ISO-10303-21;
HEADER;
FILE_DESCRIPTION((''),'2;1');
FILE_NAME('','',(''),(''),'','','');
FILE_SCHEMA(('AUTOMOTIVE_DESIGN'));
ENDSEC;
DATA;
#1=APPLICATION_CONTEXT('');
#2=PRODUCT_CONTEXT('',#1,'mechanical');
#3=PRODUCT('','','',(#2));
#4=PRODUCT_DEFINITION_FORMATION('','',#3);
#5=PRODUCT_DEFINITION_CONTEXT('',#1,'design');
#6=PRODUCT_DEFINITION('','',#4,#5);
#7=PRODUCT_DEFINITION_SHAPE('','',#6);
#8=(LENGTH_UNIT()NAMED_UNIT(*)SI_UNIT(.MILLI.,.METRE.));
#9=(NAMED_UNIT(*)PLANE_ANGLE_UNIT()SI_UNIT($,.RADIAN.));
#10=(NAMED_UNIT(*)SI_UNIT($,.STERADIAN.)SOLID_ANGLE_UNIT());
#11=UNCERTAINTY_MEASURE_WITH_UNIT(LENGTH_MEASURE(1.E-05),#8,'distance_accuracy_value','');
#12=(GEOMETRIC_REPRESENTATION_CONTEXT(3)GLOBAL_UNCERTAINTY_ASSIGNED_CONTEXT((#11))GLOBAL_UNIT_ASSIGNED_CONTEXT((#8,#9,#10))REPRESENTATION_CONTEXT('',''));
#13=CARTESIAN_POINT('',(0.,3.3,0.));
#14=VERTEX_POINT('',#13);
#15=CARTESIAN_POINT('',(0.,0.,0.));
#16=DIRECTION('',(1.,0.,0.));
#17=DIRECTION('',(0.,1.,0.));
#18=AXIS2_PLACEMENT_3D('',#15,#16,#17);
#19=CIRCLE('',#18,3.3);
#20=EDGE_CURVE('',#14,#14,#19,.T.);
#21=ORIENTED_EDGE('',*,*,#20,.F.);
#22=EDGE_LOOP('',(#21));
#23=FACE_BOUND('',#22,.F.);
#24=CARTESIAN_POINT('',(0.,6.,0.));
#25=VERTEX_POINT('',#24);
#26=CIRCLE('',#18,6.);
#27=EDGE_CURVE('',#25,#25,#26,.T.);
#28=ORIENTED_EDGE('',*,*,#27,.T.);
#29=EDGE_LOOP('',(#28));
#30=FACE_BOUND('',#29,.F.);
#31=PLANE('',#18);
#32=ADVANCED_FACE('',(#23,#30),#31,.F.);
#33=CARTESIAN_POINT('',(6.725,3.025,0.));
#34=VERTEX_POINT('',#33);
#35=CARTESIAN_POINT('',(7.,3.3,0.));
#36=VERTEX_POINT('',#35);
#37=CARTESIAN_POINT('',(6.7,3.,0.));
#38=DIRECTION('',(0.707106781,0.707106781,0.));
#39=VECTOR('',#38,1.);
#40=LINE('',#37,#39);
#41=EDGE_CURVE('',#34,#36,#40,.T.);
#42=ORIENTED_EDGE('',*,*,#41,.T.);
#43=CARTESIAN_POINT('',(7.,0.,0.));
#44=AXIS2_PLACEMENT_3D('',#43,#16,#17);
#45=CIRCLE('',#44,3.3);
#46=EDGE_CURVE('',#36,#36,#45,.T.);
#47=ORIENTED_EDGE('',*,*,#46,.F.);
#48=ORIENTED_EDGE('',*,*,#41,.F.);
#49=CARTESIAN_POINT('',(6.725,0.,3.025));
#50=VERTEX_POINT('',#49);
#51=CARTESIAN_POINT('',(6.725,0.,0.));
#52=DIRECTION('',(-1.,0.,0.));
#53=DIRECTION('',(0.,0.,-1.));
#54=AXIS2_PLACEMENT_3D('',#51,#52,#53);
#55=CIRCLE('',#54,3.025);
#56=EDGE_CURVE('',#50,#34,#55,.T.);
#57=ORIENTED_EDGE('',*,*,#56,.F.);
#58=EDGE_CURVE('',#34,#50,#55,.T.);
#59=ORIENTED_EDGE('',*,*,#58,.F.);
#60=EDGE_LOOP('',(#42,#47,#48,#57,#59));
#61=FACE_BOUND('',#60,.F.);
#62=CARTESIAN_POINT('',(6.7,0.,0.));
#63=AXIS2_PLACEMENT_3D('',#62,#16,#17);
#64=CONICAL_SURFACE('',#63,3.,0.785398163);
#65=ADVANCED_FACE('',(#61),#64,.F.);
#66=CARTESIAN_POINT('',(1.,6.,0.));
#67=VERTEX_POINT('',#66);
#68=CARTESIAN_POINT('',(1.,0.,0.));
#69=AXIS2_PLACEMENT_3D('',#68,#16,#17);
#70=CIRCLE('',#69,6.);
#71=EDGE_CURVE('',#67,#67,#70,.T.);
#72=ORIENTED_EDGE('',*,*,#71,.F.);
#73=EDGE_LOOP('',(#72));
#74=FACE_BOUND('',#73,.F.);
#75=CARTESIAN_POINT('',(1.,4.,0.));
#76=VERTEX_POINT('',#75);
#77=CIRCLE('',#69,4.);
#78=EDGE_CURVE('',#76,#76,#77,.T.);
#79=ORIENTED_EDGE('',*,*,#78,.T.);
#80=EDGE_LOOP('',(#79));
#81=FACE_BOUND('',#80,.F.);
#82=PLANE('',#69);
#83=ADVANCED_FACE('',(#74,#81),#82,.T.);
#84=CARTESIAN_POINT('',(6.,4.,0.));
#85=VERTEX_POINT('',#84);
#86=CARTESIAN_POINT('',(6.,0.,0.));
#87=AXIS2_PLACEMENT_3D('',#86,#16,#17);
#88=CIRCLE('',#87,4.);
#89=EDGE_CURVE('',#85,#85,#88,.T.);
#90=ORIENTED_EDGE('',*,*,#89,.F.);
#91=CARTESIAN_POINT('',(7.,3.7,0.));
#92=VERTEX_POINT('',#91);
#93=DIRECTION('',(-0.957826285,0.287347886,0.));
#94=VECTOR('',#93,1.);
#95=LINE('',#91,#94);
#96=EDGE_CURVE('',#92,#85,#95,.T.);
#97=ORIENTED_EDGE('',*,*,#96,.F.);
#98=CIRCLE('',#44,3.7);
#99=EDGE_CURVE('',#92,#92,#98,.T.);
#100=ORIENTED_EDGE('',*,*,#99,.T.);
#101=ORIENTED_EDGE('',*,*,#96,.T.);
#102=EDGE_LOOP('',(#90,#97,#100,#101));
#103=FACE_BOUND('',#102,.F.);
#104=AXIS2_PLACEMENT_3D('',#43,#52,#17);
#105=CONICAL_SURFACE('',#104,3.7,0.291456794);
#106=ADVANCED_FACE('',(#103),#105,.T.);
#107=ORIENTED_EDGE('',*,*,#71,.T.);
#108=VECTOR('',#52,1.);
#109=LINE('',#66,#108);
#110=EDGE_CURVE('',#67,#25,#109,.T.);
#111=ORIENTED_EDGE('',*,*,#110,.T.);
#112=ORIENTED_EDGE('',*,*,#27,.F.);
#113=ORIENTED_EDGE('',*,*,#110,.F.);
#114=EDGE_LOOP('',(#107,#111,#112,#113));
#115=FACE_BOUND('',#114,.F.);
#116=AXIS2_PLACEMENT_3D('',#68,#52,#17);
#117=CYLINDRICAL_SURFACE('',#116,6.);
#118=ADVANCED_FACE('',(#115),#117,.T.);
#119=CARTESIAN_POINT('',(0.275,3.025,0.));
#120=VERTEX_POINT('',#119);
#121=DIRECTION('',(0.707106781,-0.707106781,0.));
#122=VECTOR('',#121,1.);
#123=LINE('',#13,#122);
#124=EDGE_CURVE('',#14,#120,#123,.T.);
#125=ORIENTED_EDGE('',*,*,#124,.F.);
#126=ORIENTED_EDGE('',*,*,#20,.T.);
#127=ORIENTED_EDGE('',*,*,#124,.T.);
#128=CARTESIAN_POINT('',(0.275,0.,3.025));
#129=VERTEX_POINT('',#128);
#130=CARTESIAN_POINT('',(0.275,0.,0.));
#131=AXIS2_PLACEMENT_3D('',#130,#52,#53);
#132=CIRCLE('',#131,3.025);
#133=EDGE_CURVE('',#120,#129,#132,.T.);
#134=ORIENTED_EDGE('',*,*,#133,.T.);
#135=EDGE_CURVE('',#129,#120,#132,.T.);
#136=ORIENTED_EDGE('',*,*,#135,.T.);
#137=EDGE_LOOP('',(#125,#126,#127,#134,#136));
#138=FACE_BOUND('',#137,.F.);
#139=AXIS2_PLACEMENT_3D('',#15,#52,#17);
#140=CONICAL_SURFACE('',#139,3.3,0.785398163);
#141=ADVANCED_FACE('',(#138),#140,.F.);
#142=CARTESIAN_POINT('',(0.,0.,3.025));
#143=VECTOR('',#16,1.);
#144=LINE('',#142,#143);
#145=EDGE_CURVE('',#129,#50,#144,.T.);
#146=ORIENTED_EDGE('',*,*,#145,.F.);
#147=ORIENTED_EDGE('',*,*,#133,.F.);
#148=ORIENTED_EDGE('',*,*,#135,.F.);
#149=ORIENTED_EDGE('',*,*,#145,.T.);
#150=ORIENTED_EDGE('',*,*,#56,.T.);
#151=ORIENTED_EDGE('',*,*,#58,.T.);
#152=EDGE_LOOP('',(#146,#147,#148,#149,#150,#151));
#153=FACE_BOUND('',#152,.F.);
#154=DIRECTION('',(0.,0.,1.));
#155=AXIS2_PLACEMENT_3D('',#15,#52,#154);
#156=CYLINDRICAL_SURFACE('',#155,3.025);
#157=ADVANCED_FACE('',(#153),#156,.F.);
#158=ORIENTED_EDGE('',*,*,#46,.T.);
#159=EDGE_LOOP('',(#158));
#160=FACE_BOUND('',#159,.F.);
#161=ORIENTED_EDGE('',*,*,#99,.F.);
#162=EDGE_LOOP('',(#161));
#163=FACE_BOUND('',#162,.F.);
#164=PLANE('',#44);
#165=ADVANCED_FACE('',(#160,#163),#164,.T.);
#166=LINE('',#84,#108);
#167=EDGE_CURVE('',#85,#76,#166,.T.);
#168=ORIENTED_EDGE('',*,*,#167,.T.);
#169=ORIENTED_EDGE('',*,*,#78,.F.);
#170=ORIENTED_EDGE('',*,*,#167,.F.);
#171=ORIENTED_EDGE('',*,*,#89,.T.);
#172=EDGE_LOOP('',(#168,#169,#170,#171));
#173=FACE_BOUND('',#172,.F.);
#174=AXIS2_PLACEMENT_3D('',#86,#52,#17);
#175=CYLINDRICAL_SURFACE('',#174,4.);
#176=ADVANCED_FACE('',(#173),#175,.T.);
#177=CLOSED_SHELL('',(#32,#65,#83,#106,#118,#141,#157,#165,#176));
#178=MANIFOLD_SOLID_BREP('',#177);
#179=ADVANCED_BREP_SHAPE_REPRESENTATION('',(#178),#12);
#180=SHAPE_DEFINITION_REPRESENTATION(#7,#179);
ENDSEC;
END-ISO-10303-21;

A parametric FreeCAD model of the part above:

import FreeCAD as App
import Part
import Sketcher

V = App.Vector


def add_polygon(sketch, points):
    """Adds a closed chain of lines whose ends are joined by coincident constraints."""
    first, n = sketch.GeometryCount, len(points)
    for a, b in zip(points, points[1:] + points[:1]):
        sketch.addGeometry(Part.LineSegment(App.Vector(*a, 0), App.Vector(*b, 0)), False)
    for i in range(n):
        sketch.addConstraint(Sketcher.Constraint("Coincident", first + i, 2, first + (i + 1) % n, 1))

doc = App.newDocument("Part")
params = doc.addObject("Spreadsheet::Sheet", "Params")
for row, (alias, value) in enumerate([
    ("sketch1_width", "5 mm"),
    ("sketch1_width2", "1 mm"),
    ("sketch1_height", "2 mm"),
    ("sketch1_width3", "6.4 mm"),
    ("sketch1_height2", "2.7 mm"),
    ("revolution_angle", "360 deg"),
    ("sketch2_diameter", "6.05 mm"),
    ("pocket1_length", "7 mm"),
], start=1):
    params.set(f"A{row}", alias)
    params.set(f"B{row}", "=" + value)
    params.setAlias(f"B{row}", alias)

body = doc.addObject("PartDesign::Body", "Body")

# Sketch on XY plane
sketch1 = body.newObject("Sketcher::SketchObject", "Sketch")
sketch1.AttachmentSupport = (doc.getObject("XY_Plane"), [""])
sketch1.MapMode = "FlatFace"
add_polygon(sketch1, [(0, 6), (0, 3.3), (0.3, 3), (6.7, 3), (7, 3.3), (7, 3.7), (6, 4), (1, 4), (1, 6)])  # lines 0-8
sketch1.addConstraint(Sketcher.Constraint("Vertical", 0))
sketch1.addConstraint(Sketcher.Constraint("Horizontal", 2))
sketch1.addConstraint(Sketcher.Constraint("Vertical", 4))
sketch1.addConstraint(Sketcher.Constraint("Horizontal", 6))
sketch1.addConstraint(Sketcher.Constraint("Vertical", 7))
sketch1.addConstraint(Sketcher.Constraint("Horizontal", 8))
sketch1.addConstraint(Sketcher.Constraint("PointOnObject", 0, 2, -2))
sketch1.addConstraint(Sketcher.Constraint("Perpendicular", 1, 3))
sketch1.addConstraint(Sketcher.Constraint("Horizontal", 0, 2, 3, 2))
sketch1.addConstraint(Sketcher.Constraint("Equal", 1, 3))
sketch1.addConstraint(Sketcher.Constraint("DistanceX", 6, 2, 6, 1, 5.0))
sketch1.addConstraint(Sketcher.Constraint("DistanceX", 8, 2, 8, 1, 1.0))
sketch1.addConstraint(Sketcher.Constraint("DistanceY", 7, 1, 7, 2, 2.0))
sketch1.addConstraint(Sketcher.Constraint("DistanceX", 2, 1, 2, 2, 6.4))
sketch1.addConstraint(Sketcher.Constraint("DistanceY", 0, 2, 0, 1, 2.7))
sketch1.addConstraint(Sketcher.Constraint("DistanceY", 4, 1, 4, 2, 0.4))
sketch1.addConstraint(Sketcher.Constraint("DistanceY", -1, 1, 1, 2, 3.0))
sketch1.addConstraint(Sketcher.Constraint("DistanceX", -1, 1, 3, 2, 7.0))
sketch1.setExpression("Constraints[19]", "Params.sketch1_width")
sketch1.setExpression("Constraints[20]", "Params.sketch1_width2")
sketch1.setExpression("Constraints[21]", "Params.sketch1_height")
sketch1.setExpression("Constraints[22]", "Params.sketch1_width3")
sketch1.setExpression("Constraints[23]", "Params.sketch1_height2")
revolution = body.newObject("PartDesign::Revolution", "Revolution")
revolution.Profile = sketch1
revolution.ReferenceAxis = (sketch1, ["H_Axis"])
revolution.setExpression("Angle", "Params.revolution_angle")

# Sketch on YZ plane
sketch2 = body.newObject("Sketcher::SketchObject", "Sketch001")
sketch2.AttachmentSupport = (doc.getObject("YZ_Plane"), [""])
sketch2.MapMode = "FlatFace"
sketch2.addGeometry(Part.Circle(V(0, 0, 0), V(0, 0, 1), 3), False)
sketch2.addConstraint(Sketcher.Constraint("Coincident", 0, 3, -1, 1))
sketch2.addConstraint(Sketcher.Constraint("Diameter", 0, 6.05))
sketch2.setExpression("Constraints[1]", "Params.sketch2_diameter")
pocket1 = body.newObject("PartDesign::Pocket", "Pocket")
pocket1.Profile = sketch2
pocket1.setExpression("Length", "Params.pocket1_length")
pocket1.Reversed = True

doc.recompute()
